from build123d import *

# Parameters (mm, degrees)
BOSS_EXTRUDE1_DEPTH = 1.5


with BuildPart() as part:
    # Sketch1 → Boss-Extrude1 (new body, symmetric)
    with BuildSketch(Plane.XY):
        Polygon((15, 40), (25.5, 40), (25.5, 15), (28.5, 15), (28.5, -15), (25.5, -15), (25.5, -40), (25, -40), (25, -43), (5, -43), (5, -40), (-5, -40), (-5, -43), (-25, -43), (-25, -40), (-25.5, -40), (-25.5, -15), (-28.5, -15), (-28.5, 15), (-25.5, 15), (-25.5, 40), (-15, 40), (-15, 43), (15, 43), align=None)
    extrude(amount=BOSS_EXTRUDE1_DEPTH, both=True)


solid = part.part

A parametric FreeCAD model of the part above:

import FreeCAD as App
import Part
import Sketcher
from FreeCAD import Vector


def add_polygon(sketch, points):
    """Adds a closed chain of lines whose ends are joined by coincident constraints."""
    first, n = sketch.GeometryCount, len(points)
    for a, b in zip(points, points[1:] + points[:1]):
        sketch.addGeometry(Part.LineSegment(App.Vector(*a, 0), App.Vector(*b, 0)), False)
    for i in range(n):
        sketch.addConstraint(Sketcher.Constraint("Coincident", first + i, 2, first + (i + 1) % n, 1))

doc = App.newDocument("Part")
body = doc.addObject("PartDesign::Body", "Body")

sketch1 = body.newObject("Sketcher::SketchObject", "Sketch")
sketch1.AttachmentSupport = (doc.getObject("XY_Plane"), [""])
sketch1.MapMode = "FlatFace"
add_polygon(sketch1, [(25.5, 40), (15, 40), (15, 43), (-15, 43), (-15, 40), (-25.5, 40), (-25.5, 15), (-28.5, 15), (-28.5, -15), (-25.5, -15), (-25.5, -40), (-25, -40), (-25, -43), (-5, -43), (-5, -40), (5, -40), (5, -43), (25, -43), (25, -40), (25.5, -40), (25.5, -15), (28.5, -15), (28.5, 15), (25.5, 15)])
sketch1.addConstraint([
    Sketcher.Constraint("Horizontal", 0),
    Sketcher.Constraint("Vertical", 1),
    Sketcher.Constraint("Horizontal", 2),
    Sketcher.Constraint("Vertical", 3),
    Sketcher.Constraint("Horizontal", 4),
    Sketcher.Constraint("Vertical", 5),
    Sketcher.Constraint("Horizontal", 6),
    Sketcher.Constraint("Vertical", 7),
    Sketcher.Constraint("Horizontal", 8),
    Sketcher.Constraint("Vertical", 9),
    Sketcher.Constraint("Horizontal", 10),
    Sketcher.Constraint("Vertical", 11),
    Sketcher.Constraint("Horizontal", 12),
    Sketcher.Constraint("Vertical", 13),
    Sketcher.Constraint("Horizontal", 14),
    Sketcher.Constraint("Vertical", 15),
    Sketcher.Constraint("Horizontal", 16),
    Sketcher.Constraint("Vertical", 17),
    Sketcher.Constraint("Horizontal", 18),
    Sketcher.Constraint("Vertical", 19),
    Sketcher.Constraint("Horizontal", 20),
    Sketcher.Constraint("Vertical", 21),
    Sketcher.Constraint("Horizontal", 22),
    Sketcher.Constraint("Vertical", 23),
    Sketcher.Constraint("Symmetric", 4, 2, 18, 2, -1, 1),
    Sketcher.Constraint("Symmetric", 6, 2, 20, 2, -1, 1),
    Sketcher.Constraint("Symmetric", 8, 2, 22, 2, -1, 1),
    Sketcher.Constraint("Symmetric", 0, 2, 3, 2, -2),
    Sketcher.Constraint("Symmetric", 12, 2, 15, 2, -2),
    Sketcher.Constraint("Symmetric", 10, 2, 17, 2, -2),
    Sketcher.Constraint("Symmetric", 8, 2, 19, 2, -2),
    Sketcher.Constraint("Horizontal", 10, 2, 13, 2),
    Sketcher.Constraint("Equal", 22, 1),
    Sketcher.Constraint("Equal", 2, 7),
    Sketcher.Constraint("Equal", 3, 11),
    Sketcher.Constraint("DistanceX", 2, 2, 2, 1, 30.0),
    Sketcher.Constraint("DistanceX", 6, 2, 6, 1, 3.0),
    Sketcher.Constraint("DistanceX", 12, 1, 12, 2, 20.0),
    Sketcher.Constraint("DistanceX", 14, 1, 14, 2, 10.0),
    Sketcher.Constraint("DistanceY", 5, 2, 5, 1, 25.0),
    Sketcher.Constraint("DistanceX", 0, 2, 0, 1, 10.5),
])
pad1 = body.newObject("PartDesign::Pad", "Pad")
pad1.Profile = sketch1
pad1.Length = 3
pad1.Midplane = True

doc.recompute()
